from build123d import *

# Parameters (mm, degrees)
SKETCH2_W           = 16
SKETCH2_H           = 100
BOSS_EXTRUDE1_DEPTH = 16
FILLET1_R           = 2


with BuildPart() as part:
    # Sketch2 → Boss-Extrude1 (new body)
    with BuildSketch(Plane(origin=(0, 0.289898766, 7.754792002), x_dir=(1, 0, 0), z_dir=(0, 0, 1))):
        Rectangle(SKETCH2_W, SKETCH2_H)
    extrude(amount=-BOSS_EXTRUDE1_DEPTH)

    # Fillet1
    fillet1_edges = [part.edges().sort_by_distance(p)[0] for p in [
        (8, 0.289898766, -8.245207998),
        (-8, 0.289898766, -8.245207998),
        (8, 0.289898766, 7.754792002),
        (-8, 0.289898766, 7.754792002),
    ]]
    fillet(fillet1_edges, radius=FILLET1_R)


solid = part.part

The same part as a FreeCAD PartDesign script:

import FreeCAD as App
import Part
import Sketcher

V = App.Vector
Q = App.Units.Quantity


def edges_at(feature, points):
    """Names of the edges that pass closest to the given points."""
    edges = feature.Shape.Edges
    near = lambda p: min(range(len(edges)), key=lambda i: edges[i].distToShape(Part.Vertex(*p))[0])
    return sorted({f"Edge{near(p) + 1}" for p in points})

doc = App.newDocument("Part")
params = doc.addObject("Spreadsheet::Sheet", "Params")
for row, (alias, value) in enumerate([
    ("sketch1_width", "16 mm"),
    ("sketch1_height", "100 mm"),
    ("pad1_length", "16 mm"),
    ("fillet_radius", "2 mm"),
], start=1):
    params.set(f"A{row}", alias)
    params.set(f"B{row}", "=" + value)
    params.setAlias(f"B{row}", alias)

body = doc.addObject("PartDesign::Body", "Body")

sketch1 = doc.addObject("Sketcher::SketchObject", "Sketch")
body.addObject(sketch1)
sketch1.AttachmentSupport = (doc.XY_Plane, [""])
sketch1.MapMode = "FlatFace"
sketch1.AttachmentOffset = App.Placement(V(0, 0, 7.754792), App.Rotation())
sketch1.addGeometry([
    Part.LineSegment(V(-8, 50, 0), V(-8, -50, 0)),
    Part.LineSegment(V(-8, -50, 0), V(8, -50, 0)),
    Part.LineSegment(V(8, -50, 0), V(8, 50, 0)),
    Part.LineSegment(V(8, 50, 0), V(-8, 50, 0)),
], False)
sketch1.addConstraint([
    Sketcher.Constraint("Coincident", 0, 2, 1, 1),
    Sketcher.Constraint("Coincident", 1, 2, 2, 1),
    Sketcher.Constraint("Coincident", 2, 2, 3, 1),
    Sketcher.Constraint("Coincident", 3, 2, 0, 1),
    Sketcher.Constraint("Vertical", 0),
    Sketcher.Constraint("Horizontal", 1),
    Sketcher.Constraint("Vertical", 2),
    Sketcher.Constraint("Horizontal", 3),
    Sketcher.Constraint("DistanceX", 1, 1, 1, 2, Q("16 mm")),
    Sketcher.Constraint("DistanceY", 0, 2, 0, 1, Q("100 mm")),
    Sketcher.Constraint("DistanceX", 0, 2, -1, 1, Q("8 mm")),
    Sketcher.Constraint("DistanceY", 0, 2, -1, 1, Q("49.710101 mm")),
])
sketch1.setExpression("Constraints[8]", "Params.sketch1_width")
sketch1.setExpression("Constraints[9]", "Params.sketch1_height")
pad1 = doc.addObject("PartDesign::Pad", "Pad")
body.addObject(pad1)
pad1.Profile = sketch1
pad1.setExpression("Length", "Params.pad1_length")
pad1.Reversed = True
doc.recompute()

fillet = doc.addObject("PartDesign::Fillet", "Fillet")
body.addObject(fillet)
fillet.Base = (pad1, edges_at(pad1, [
    (8, 0.29, -8.245),
    (-8, 0.29, -8.245),
    (8, 0.29, 7.755),
    (-8, 0.29, 7.755),
]))
fillet.setExpression("Radius", "Params.fillet_radius")

doc.recompute()
